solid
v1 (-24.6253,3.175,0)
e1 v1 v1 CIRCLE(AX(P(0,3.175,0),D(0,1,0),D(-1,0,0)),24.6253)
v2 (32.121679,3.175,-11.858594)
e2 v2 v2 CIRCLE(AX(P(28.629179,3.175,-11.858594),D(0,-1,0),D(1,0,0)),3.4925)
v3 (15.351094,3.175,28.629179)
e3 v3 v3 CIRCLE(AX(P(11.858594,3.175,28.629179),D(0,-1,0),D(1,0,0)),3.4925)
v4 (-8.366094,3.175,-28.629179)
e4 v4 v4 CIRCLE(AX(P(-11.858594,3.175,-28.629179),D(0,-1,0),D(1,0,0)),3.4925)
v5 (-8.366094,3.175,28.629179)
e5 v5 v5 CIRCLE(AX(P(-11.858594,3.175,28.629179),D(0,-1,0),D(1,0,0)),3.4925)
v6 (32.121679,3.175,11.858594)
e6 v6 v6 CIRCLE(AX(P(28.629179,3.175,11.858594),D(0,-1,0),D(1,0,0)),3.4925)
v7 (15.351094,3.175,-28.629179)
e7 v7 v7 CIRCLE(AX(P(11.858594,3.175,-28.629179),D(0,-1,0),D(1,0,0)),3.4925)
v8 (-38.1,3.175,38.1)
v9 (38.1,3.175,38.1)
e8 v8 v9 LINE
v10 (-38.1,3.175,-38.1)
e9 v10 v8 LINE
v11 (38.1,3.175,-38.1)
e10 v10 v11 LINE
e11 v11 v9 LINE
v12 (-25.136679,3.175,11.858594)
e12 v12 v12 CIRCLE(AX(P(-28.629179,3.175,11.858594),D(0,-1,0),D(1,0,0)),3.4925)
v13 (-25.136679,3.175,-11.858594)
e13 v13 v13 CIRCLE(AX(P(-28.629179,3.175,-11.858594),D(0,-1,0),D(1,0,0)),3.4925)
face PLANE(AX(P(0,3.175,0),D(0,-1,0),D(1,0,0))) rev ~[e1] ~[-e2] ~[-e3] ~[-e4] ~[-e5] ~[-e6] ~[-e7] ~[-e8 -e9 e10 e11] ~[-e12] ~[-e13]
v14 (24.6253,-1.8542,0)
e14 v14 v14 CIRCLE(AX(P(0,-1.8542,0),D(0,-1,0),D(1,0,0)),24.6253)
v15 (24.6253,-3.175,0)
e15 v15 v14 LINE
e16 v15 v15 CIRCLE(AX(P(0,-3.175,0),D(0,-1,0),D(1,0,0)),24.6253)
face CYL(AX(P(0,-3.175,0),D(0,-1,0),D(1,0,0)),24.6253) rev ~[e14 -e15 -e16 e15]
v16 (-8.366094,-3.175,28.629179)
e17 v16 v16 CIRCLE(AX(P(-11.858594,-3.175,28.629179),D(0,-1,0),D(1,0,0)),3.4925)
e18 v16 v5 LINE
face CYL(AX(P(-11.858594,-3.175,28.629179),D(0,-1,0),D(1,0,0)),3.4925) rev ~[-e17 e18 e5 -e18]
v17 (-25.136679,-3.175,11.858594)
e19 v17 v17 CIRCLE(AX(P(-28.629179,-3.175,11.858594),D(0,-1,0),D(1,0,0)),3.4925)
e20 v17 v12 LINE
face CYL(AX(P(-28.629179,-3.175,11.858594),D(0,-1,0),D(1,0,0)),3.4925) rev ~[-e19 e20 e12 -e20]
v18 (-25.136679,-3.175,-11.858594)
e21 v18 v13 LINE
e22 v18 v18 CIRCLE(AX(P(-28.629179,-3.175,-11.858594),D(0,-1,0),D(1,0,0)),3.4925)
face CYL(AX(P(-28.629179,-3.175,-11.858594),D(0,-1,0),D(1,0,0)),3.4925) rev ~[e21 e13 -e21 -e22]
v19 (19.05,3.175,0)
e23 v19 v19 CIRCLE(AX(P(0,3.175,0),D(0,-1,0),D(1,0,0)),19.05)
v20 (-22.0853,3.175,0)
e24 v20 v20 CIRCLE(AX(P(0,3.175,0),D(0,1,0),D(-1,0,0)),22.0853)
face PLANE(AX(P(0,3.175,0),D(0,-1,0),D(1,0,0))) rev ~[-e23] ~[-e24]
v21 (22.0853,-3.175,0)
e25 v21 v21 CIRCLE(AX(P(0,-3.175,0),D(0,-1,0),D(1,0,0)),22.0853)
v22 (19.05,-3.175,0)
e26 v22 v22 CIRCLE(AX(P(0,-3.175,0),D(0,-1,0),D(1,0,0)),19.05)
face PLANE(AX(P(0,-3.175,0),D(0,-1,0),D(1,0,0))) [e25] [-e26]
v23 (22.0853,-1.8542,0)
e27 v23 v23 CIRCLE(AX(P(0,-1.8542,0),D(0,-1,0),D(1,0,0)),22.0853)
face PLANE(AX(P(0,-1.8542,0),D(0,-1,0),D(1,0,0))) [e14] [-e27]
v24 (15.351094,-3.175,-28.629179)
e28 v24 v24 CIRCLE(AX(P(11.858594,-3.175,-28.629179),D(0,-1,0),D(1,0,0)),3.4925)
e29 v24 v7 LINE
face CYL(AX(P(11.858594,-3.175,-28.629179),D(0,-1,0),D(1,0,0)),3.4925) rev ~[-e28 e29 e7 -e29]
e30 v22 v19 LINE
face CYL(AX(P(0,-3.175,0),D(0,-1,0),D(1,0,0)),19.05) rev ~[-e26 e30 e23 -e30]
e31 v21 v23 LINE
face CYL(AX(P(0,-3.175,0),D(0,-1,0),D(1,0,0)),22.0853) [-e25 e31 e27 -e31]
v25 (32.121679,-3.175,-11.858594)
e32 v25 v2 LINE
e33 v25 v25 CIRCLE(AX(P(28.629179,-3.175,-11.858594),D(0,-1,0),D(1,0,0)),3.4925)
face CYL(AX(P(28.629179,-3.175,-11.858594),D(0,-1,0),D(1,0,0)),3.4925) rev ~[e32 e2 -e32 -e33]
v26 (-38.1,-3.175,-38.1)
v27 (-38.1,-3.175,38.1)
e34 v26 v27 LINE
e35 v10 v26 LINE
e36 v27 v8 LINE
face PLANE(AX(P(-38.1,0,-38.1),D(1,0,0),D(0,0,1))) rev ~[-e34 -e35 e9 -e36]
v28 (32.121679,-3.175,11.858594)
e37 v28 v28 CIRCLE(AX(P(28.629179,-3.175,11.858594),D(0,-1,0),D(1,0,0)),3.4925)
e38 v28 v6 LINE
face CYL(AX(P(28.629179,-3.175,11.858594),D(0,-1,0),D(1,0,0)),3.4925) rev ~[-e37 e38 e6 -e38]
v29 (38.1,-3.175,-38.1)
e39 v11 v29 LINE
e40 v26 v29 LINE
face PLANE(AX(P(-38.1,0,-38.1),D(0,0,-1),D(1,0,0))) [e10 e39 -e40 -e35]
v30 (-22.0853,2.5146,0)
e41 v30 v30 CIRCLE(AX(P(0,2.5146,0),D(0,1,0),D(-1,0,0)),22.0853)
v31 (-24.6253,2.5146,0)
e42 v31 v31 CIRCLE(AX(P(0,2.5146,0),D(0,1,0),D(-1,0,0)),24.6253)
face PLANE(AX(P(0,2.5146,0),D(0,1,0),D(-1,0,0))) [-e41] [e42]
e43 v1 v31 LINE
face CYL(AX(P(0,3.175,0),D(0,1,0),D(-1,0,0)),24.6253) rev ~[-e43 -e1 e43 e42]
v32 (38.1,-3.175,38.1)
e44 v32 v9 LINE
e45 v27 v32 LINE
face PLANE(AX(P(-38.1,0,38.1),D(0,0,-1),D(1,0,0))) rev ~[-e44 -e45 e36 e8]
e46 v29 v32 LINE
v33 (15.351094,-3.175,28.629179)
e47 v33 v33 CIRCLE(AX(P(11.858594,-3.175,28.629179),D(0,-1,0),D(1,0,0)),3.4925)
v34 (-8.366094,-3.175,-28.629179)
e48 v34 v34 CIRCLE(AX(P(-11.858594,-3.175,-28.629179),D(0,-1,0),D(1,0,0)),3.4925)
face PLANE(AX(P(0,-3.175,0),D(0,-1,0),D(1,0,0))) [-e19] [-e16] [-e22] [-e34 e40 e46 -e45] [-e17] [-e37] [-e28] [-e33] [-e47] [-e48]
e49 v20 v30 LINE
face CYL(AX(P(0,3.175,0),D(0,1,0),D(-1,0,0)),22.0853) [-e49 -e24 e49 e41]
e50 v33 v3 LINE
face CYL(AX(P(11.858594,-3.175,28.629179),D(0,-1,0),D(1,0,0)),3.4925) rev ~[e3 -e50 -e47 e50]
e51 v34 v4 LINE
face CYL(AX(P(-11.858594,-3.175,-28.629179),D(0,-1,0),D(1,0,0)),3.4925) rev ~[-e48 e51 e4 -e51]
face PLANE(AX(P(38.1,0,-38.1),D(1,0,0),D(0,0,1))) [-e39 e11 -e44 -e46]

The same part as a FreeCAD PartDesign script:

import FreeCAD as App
import Part
import Sketcher
from FreeCAD import Vector
Q = App.Units.Quantity

doc = App.newDocument("Part")
params = doc.addObject("Spreadsheet::Sheet", "Params")
for row, (alias, value) in enumerate([
    ("sketch1_width", "3 in"),
    ("pad1_length", "0.25 in"),
    ("sketch2_diameter", "0.275 in"),
    ("pocket1_length", "1 in"),
    ("sketch3_diameter", "1.5 in"),
    ("pocket2_length", "1 in"),
    ("sketch4_diameter", "1.939 in"),
    ("sketch4_diameter2", "1.739 in"),
    ("pocket3_length", "0.052 in"),
    ("sketch5_diameter", "1.939 in"),
    ("sketch5_diameter2", "1.739 in"),
    ("pocket4_length", "0.026 in"),
], start=1):
    params.set(f"A{row}", alias)
    params.set(f"B{row}", "=" + value)
    params.setAlias(f"B{row}", alias)

body = doc.addObject("PartDesign::Body", "Body")

sketch1 = body.newObject("Sketcher::SketchObject", "Sketch")
sketch1.AttachmentSupport = (doc.getObject("XZ_Plane"), [""])
sketch1.MapMode = "FlatFace"
sketch1.addGeometry([
    Part.LineSegment(Vector(-38.1, 38.1, 0), Vector(-38.1, -38.1, 0)),
    Part.LineSegment(Vector(-38.1, -38.1, 0), Vector(38.1, -38.1, 0)),
    Part.LineSegment(Vector(38.1, -38.1, 0), Vector(38.1, 38.1, 0)),
    Part.LineSegment(Vector(38.1, 38.1, 0), Vector(-38.1, 38.1, 0)),
], False)
sketch1.addConstraint([
    Sketcher.Constraint("Coincident", 0, 2, 1, 1),
    Sketcher.Constraint("Coincident", 1, 2, 2, 1),
    Sketcher.Constraint("Coincident", 2, 2, 3, 1),
    Sketcher.Constraint("Coincident", 3, 2, 0, 1),
    Sketcher.Constraint("Vertical", 0),
    Sketcher.Constraint("Horizontal", 1),
    Sketcher.Constraint("Vertical", 2),
    Sketcher.Constraint("Horizontal", 3),
    Sketcher.Constraint("Symmetric", 0, 2, 2, 2, -1, 1),
    Sketcher.Constraint("Equal", 3, 0),
    Sketcher.Constraint("DistanceX", 1, 1, 1, 2, Q("3 in")),
])
sketch1.setExpression("Constraints[10]", "Params.sketch1_width")
pad1 = body.newObject("PartDesign::Pad", "Pad")
pad1.Profile = sketch1
pad1.setExpression("Length", "Params.pad1_length")
pad1.Midplane = True

sketch2 = body.newObject("Sketcher::SketchObject", "Sketch001")
sketch2.AttachmentSupport = (doc.getObject("XZ_Plane"), [""])
sketch2.MapMode = "FlatFace"
sketch2.AttachmentOffset = App.Placement(Vector(0, 0, 0.125 * 25.4), App.Rotation())
sketch2.addGeometry([
    Part.Circle(Vector(11.858594, 28.629179, 0), Vector(0, 0, 1), 3.4925),
    Part.Circle(Vector(-11.858594, 28.629179, 0), Vector(0, 0, 1), 3.4925),
    Part.Circle(Vector(-28.629179, 11.858594, 0), Vector(0, 0, 1), 3.4925),
    Part.Circle(Vector(-28.629179, -11.858594, 0), Vector(0, 0, 1), 3.4925),
    Part.Circle(Vector(-11.858594, -28.629179, 0), Vector(0, 0, 1), 3.4925),
    Part.Circle(Vector(11.858594, -28.629179, 0), Vector(0, 0, 1), 3.4925),
    Part.Circle(Vector(28.629179, -11.858594, 0), Vector(0, 0, 1), 3.4925),
    Part.Circle(Vector(28.629179, 11.858594, 0), Vector(0, 0, 1), 3.4925),
], False)
sketch2.addConstraint([
    Sketcher.Constraint("Equal", 0, 1),
    Sketcher.Constraint("Equal", 1, 2),
    Sketcher.Constraint("Equal", 2, 3),
    Sketcher.Constraint("Equal", 3, 4),
    Sketcher.Constraint("Equal", 4, 5),
    Sketcher.Constraint("Equal", 5, 6),
    Sketcher.Constraint("Equal", 6, 7),
    Sketcher.Constraint("Symmetric", 0, 3, 4, 3, -1, 1),
    Sketcher.Constraint("Symmetric", 1, 3, 5, 3, -1, 1),
    Sketcher.Constraint("Symmetric", 2, 3, 6, 3, -1, 1),
    Sketcher.Constraint("Symmetric", 3, 3, 7, 3, -1, 1),
    Sketcher.Constraint("Symmetric", 0, 3, 1, 3, -2),
    Sketcher.Constraint("Symmetric", 3, 3, 6, 3, -2),
    Sketcher.Constraint("Diameter", 0, Q("0.275 in")),
    Sketcher.Constraint("DistanceY", -1, 1, 0, 3, 28.629179),
    Sketcher.Constraint("DistanceX", 2, 3, -1, 1, 28.629179),
    Sketcher.Constraint("DistanceX", 1, 3, 0, 3, 23.717188),
    Sketcher.Constraint("DistanceY", 3, 3, 2, 3, 23.717188),
])
sketch2.setExpression("Constraints[13]", "Params.sketch2_diameter")
pocket1 = body.newObject("PartDesign::Pocket", "Pocket")
pocket1.Profile = sketch2
pocket1.setExpression("Length", "Params.pocket1_length")

sketch3 = body.newObject("Sketcher::SketchObject", "Sketch002")
sketch3.AttachmentSupport = (doc.getObject("XZ_Plane"), [""])
sketch3.MapMode = "FlatFace"
sketch3.AttachmentOffset = App.Placement(Vector(0, 0, 0.125 * 25.4), App.Rotation())
sketch3.addGeometry(Part.Circle(Vector(0, 0, 0), Vector(0, 0, 1), 19.05), False)
sketch3.addConstraint([
    Sketcher.Constraint("Coincident", 0, 3, -1, 1),
    Sketcher.Constraint("Diameter", 0, Q("1.5 in")),
])
sketch3.setExpression("Constraints[1]", "Params.sketch3_diameter")
pocket2 = body.newObject("PartDesign::Pocket", "Pocket001")
pocket2.Profile = sketch3
pocket2.setExpression("Length", "Params.pocket2_length")

sketch4 = body.newObject("Sketcher::SketchObject", "Sketch003")
sketch4.AttachmentSupport = (doc.getObject("XZ_Plane"), [""])
sketch4.MapMode = "FlatFace"
sketch4.AttachmentOffset = App.Placement(Vector(0, 0, 0.125 * 25.4), App.Rotation())
sketch4.addGeometry([
    Part.Circle(Vector(0, 0, 0), Vector(0, 0, 1), 24.6253),
    Part.Circle(Vector(0, 0, 0), Vector(0, 0, 1), 22.0853),
], False)
sketch4.addConstraint([
    Sketcher.Constraint("Coincident", 0, 3, -1, 1),
    Sketcher.Constraint("Coincident", 1, 3, -1, 1),
    Sketcher.Constraint("Diameter", 0, Q("1.939 in")),
    Sketcher.Constraint("Diameter", 1, Q("1.739 in")),
])
sketch4.setExpression("Constraints[2]", "Params.sketch4_diameter")
sketch4.setExpression("Constraints[3]", "Params.sketch4_diameter2")
pocket3 = body.newObject("PartDesign::Pocket", "Pocket002")
pocket3.Profile = sketch4
pocket3.setExpression("Length", "Params.pocket3_length")

sketch5 = body.newObject("Sketcher::SketchObject", "Sketch004")
sketch5.AttachmentSupport = (doc.getObject("XZ_Plane"), [""])
sketch5.MapMode = "FlatFace"
sketch5.AttachmentOffset = App.Placement(Vector(0, 0, -0.125 * 25.4), App.Rotation())
sketch5.addGeometry([
    Part.Circle(Vector(0, 0, 0), Vector(0, 0, 1), 24.6253),
    Part.Circle(Vector(0, 0, 0), Vector(0, 0, 1), 22.0853),
], False)
sketch5.addConstraint([
    Sketcher.Constraint("Coincident", 0, 3, -1, 1),
    Sketcher.Constraint("Coincident", 1, 3, -1, 1),
    Sketcher.Constraint("Diameter", 0, Q("1.939 in")),
    Sketcher.Constraint("Diameter", 1, Q("1.739 in")),
])
sketch5.setExpression("Constraints[2]", "Params.sketch5_diameter")
sketch5.setExpression("Constraints[3]", "Params.sketch5_diameter2")
pocket4 = body.newObject("PartDesign::Pocket", "Pocket003")
pocket4.Profile = sketch5
pocket4.setExpression("Length", "Params.pocket4_length")
pocket4.Reversed = True

doc.recompute()
